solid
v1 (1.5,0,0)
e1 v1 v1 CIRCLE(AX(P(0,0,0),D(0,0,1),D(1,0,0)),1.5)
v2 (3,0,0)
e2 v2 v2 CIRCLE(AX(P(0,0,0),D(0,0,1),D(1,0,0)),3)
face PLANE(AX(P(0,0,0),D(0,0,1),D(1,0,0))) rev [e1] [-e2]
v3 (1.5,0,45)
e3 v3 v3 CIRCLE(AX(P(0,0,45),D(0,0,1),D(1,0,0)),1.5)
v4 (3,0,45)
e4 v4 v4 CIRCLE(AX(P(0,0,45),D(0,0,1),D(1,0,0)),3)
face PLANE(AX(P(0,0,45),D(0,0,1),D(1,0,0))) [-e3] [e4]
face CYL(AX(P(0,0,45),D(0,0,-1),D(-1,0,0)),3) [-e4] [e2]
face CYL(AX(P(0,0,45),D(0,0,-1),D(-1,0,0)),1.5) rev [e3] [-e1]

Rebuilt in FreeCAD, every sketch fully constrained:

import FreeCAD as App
import Part
import Sketcher
Q = App.Units.Quantity

doc = App.newDocument("Part")
params = doc.addObject("Spreadsheet::Sheet", "Params")
for row, (alias, value) in enumerate([
    ("sketch1_diameter", "6 mm"),
    ("sketch1_diameter2", "3 mm"),
    ("pad1_length", "45 mm"),
], start=1):
    params.set(f"A{row}", alias)
    params.set(f"B{row}", "=" + value)
    params.setAlias(f"B{row}", alias)

body = doc.addObject("PartDesign::Body", "Body")

sketch1 = doc.addObject("Sketcher::SketchObject", "Sketch")
body.addObject(sketch1)
sketch1.AttachmentSupport = (doc.XY_Plane, [""])
sketch1.MapMode = "FlatFace"
sketch1.addGeometry([
    Part.Circle(App.Vector(0, 0, 0), App.Vector(0, 0, 1), 3),
    Part.Circle(App.Vector(0, 0, 0), App.Vector(0, 0, 1), 1.5),
], False)
sketch1.addConstraint([
    Sketcher.Constraint("Coincident", 0, 3, -1, 1),
    Sketcher.Constraint("Coincident", 1, 3, -1, 1),
    Sketcher.Constraint("Diameter", 0, Q("6 mm")),
    Sketcher.Constraint("Diameter", 1, Q("3 mm")),
])
sketch1.setExpression("Constraints[2]", "Params.sketch1_diameter")
sketch1.setExpression("Constraints[3]", "Params.sketch1_diameter2")
pad1 = doc.addObject("PartDesign::Pad", "Pad")
body.addObject(pad1)
pad1.Profile = sketch1
pad1.setExpression("Length", "Params.pad1_length")

doc.recompute()
